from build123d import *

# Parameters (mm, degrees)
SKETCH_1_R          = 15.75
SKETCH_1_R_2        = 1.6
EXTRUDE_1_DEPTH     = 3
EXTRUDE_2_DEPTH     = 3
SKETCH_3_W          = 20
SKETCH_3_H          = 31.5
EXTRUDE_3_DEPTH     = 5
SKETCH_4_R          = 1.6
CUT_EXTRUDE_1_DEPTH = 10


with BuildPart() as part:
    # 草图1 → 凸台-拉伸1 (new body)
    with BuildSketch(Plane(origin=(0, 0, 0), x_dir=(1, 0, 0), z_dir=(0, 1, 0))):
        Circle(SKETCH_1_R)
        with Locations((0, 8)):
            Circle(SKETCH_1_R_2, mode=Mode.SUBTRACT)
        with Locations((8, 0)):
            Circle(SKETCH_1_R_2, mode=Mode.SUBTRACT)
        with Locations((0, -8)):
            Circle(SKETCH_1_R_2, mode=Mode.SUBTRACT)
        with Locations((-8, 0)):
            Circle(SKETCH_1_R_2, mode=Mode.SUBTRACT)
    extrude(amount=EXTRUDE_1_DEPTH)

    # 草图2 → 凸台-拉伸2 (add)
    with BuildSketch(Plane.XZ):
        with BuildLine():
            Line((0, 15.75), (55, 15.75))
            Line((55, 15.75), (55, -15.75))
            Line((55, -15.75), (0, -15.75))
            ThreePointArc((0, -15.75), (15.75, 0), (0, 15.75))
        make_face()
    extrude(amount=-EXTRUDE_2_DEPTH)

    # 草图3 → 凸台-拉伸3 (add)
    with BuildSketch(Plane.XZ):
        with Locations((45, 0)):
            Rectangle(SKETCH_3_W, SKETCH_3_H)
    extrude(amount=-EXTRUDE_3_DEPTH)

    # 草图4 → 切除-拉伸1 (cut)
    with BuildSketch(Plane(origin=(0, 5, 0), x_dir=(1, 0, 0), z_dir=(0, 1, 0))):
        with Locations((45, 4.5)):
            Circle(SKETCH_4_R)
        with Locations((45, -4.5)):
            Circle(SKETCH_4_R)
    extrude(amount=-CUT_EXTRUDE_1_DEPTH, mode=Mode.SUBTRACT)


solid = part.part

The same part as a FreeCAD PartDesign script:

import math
import FreeCAD as App
import Part
import Sketcher
from FreeCAD import Vector


def add_polygon(sketch, points):
    """Adds a closed chain of lines whose ends are joined by coincident constraints."""
    first, n = sketch.GeometryCount, len(points)
    for a, b in zip(points, points[1:] + points[:1]):
        sketch.addGeometry(Part.LineSegment(App.Vector(*a, 0), App.Vector(*b, 0)), False)
    for i in range(n):
        sketch.addConstraint(Sketcher.Constraint("Coincident", first + i, 2, first + (i + 1) % n, 1))

doc = App.newDocument("Part")
body = doc.addObject("PartDesign::Body", "Body")

# Sketch on XZ plane
sketch1 = doc.addObject("Sketcher::SketchObject", "Sketch")
body.addObject(sketch1)
sketch1.AttachmentSupport = (doc.XZ_Plane, [""])
sketch1.MapMode = "FlatFace"
sketch1.addGeometry(Part.Circle(Vector(0, 0, 0), Vector(0, 0, 1), 15.75), False)
sketch1.addGeometry(Part.Circle(Vector(0, 8, 0), Vector(0, 0, 1), 1.6), False)
sketch1.addGeometry(Part.Circle(Vector(-8, 0, 0), Vector(0, 0, 1), 1.6), False)
sketch1.addGeometry(Part.Circle(Vector(8, 0, 0), Vector(0, 0, 1), 1.6), False)
sketch1.addGeometry(Part.Circle(Vector(0, -8, 0), Vector(0, 0, 1), 1.6), False)
sketch1.addConstraint(Sketcher.Constraint("Coincident", 0, 3, -1, 1))
sketch1.addConstraint(Sketcher.Constraint("Equal", 1, 2))
sketch1.addConstraint(Sketcher.Constraint("Equal", 2, 3))
sketch1.addConstraint(Sketcher.Constraint("Equal", 3, 4))
sketch1.addConstraint(Sketcher.Constraint("Symmetric", 2, 3, 3, 3, -1, 1))
sketch1.addConstraint(Sketcher.Constraint("Symmetric", 1, 3, 4, 3, -1, 1))
sketch1.addConstraint(Sketcher.Constraint("PointOnObject", 1, 3, -2))
sketch1.addConstraint(Sketcher.Constraint("PointOnObject", 2, 3, -1))
sketch1.addConstraint(Sketcher.Constraint("Diameter", 0, 31.5))
sketch1.addConstraint(Sketcher.Constraint("Diameter", 1, 3.2))
sketch1.addConstraint(Sketcher.Constraint("DistanceY", -1, 1, 1, 3, 8.0))
sketch1.addConstraint(Sketcher.Constraint("DistanceX", 2, 3, -1, 1, 8.0))
pad1 = doc.addObject("PartDesign::Pad", "Pad")
body.addObject(pad1)
pad1.Profile = sketch1
pad1.Length = 3
pad1.Reversed = True

# Sketch on XZ plane
sketch2 = doc.addObject("Sketcher::SketchObject", "Sketch001")
body.addObject(sketch2)
sketch2.AttachmentSupport = (doc.XZ_Plane, [""])
sketch2.MapMode = "FlatFace"
sketch2.addGeometry(Part.LineSegment(Vector(55, 15.75, 0), Vector(0, 15.75, 0)), False)
sketch2.addGeometry(Part.ArcOfCircle(Part.Circle(Vector(0, 0, 0), Vector(0, 0, 1), 15.75), math.radians(-90), math.radians(90)), False)
sketch2.addGeometry(Part.LineSegment(Vector(0, -15.75, 0), Vector(55, -15.75, 0)), False)
sketch2.addGeometry(Part.LineSegment(Vector(55, -15.75, 0), Vector(55, 15.75, 0)), False)
sketch2.addConstraint(Sketcher.Constraint("Tangent", 0, 2, 1, 2))
sketch2.addConstraint(Sketcher.Constraint("Tangent", 1, 1, 2, 1))
sketch2.addConstraint(Sketcher.Constraint("Coincident", 2, 2, 3, 1))
sketch2.addConstraint(Sketcher.Constraint("Coincident", 3, 2, 0, 1))
sketch2.addConstraint(Sketcher.Constraint("Horizontal", 0))
sketch2.addConstraint(Sketcher.Constraint("Horizontal", 2))
sketch2.addConstraint(Sketcher.Constraint("Vertical", 3))
sketch2.addConstraint(Sketcher.Constraint("Coincident", 1, 3, -1, 1))
sketch2.addConstraint(Sketcher.Constraint("DistanceX", 0, 2, 0, 1, 55.0))
sketch2.addConstraint(Sketcher.Constraint("Radius", 1, 15.75))
pad2 = doc.addObject("PartDesign::Pad", "Pad001")
body.addObject(pad2)
pad2.Profile = sketch2
pad2.Length = 3
pad2.Reversed = True

# Sketch on XZ plane
sketch3 = doc.addObject("Sketcher::SketchObject", "Sketch002")
body.addObject(sketch3)
sketch3.AttachmentSupport = (doc.XZ_Plane, [""])
sketch3.MapMode = "FlatFace"
add_polygon(sketch3, [(35, 15.75), (35, -15.75), (55, -15.75), (55, 15.75)])  # lines 0-3
sketch3.addConstraint(Sketcher.Constraint("Vertical", 0))
sketch3.addConstraint(Sketcher.Constraint("Horizontal", 1))
sketch3.addConstraint(Sketcher.Constraint("Vertical", 2))
sketch3.addConstraint(Sketcher.Constraint("Horizontal", 3))
sketch3.addConstraint(Sketcher.Constraint("DistanceX", 1, 1, 1, 2, 20.0))
sketch3.addConstraint(Sketcher.Constraint("DistanceY", 0, 2, 0, 1, 31.5))
sketch3.addConstraint(Sketcher.Constraint("DistanceX", -1, 1, 0, 2, 35.0))
sketch3.addConstraint(Sketcher.Constraint("DistanceY", 0, 2, -1, 1, 15.75))
pad3 = doc.addObject("PartDesign::Pad", "Pad002")
body.addObject(pad3)
pad3.Profile = sketch3
pad3.Length = 5
pad3.Reversed = True

# Sketch on XZ plane
sketch4 = doc.addObject("Sketcher::SketchObject", "Sketch003")
body.addObject(sketch4)
sketch4.AttachmentSupport = (doc.XZ_Plane, [""])
sketch4.MapMode = "FlatFace"
sketch4.AttachmentOffset = App.Placement(Vector(0, 0, -5), App.Rotation())
sketch4.addGeometry(Part.Circle(Vector(45, -4.5, 0), Vector(0, 0, 1), 1.6), False)
sketch4.addGeometry(Part.Circle(Vector(45, 4.5, 0), Vector(0, 0, 1), 1.6), False)
sketch4.addConstraint(Sketcher.Constraint("Equal", 0, 1))
sketch4.addConstraint(Sketcher.Constraint("Symmetric", 0, 3, 1, 3, -1))
sketch4.addConstraint(Sketcher.Constraint("Diameter", 0, 3.2))
sketch4.addConstraint(Sketcher.Constraint("DistanceX", -1, 1, 0, 3, 45.0))
sketch4.addConstraint(Sketcher.Constraint("DistanceY", 0, 3, 1, 3, 9.0))
pocket1 = doc.addObject("PartDesign::Pocket", "Pocket")
body.addObject(pocket1)
pocket1.Profile = sketch4
pocket1.Length = 10
pocket1.Reversed = True

doc.recompute()
